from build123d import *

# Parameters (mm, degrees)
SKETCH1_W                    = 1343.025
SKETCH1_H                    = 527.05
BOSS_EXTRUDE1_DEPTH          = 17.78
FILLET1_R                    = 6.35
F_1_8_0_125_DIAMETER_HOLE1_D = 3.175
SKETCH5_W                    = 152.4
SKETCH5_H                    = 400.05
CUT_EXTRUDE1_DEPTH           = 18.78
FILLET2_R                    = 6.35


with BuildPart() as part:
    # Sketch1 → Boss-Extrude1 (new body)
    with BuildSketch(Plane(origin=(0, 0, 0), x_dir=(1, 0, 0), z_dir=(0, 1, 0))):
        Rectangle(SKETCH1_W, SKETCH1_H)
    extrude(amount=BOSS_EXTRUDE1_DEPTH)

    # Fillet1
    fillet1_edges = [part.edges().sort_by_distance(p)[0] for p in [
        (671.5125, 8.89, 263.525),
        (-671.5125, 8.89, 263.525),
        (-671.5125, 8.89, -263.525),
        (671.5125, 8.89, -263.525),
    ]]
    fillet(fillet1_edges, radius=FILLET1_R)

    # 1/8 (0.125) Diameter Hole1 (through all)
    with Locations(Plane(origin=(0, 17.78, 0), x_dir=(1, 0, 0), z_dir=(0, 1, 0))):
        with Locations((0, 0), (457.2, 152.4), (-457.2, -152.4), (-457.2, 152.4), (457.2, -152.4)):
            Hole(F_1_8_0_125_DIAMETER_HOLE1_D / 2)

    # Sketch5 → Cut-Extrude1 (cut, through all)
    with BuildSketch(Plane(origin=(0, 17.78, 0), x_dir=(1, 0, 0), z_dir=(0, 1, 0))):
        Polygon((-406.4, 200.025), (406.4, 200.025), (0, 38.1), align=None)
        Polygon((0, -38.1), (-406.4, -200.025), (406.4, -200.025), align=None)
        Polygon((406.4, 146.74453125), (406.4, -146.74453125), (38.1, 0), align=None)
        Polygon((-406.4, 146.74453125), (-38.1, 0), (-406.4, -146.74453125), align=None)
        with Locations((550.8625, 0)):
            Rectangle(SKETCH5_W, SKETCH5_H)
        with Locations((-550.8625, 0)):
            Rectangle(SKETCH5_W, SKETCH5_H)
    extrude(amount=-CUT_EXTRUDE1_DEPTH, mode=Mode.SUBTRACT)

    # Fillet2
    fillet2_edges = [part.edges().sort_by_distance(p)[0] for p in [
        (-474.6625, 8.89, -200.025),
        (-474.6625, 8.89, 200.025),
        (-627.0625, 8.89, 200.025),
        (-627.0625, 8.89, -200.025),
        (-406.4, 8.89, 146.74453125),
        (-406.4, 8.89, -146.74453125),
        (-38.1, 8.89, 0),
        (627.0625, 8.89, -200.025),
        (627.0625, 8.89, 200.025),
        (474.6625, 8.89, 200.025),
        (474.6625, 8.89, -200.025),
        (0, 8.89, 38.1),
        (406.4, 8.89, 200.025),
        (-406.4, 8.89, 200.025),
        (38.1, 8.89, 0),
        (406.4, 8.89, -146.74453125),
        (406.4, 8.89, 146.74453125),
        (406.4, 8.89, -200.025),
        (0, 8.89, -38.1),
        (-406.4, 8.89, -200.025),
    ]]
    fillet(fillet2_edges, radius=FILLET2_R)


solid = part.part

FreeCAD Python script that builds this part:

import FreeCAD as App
import Part
import Sketcher
Q = App.Units.Quantity


def edges_at(feature, points):
    """Names of the edges that pass closest to the given points."""
    edges = feature.Shape.Edges
    near = lambda p: min(range(len(edges)), key=lambda i: edges[i].distToShape(Part.Vertex(*p))[0])
    return sorted({f"Edge{near(p) + 1}" for p in points})

doc = App.newDocument("Part")
params = doc.addObject("Spreadsheet::Sheet", "Params")
for row, (alias, value) in enumerate([
    ("sketch1_height", "20.75 in"),
    ("sketch1_width", "52.875 in"),
    ("pad1_length", "0.7 in"),
    ("fillet_radius", "0.25 in"),
    ("sketch2_diameter", "0.125 in"),
    ("hole_diameter", "0.125 in"),
    ("sketch3_width", "32 in"),
    ("sketch3_width2", "6 in"),
    ("sketch3_height", "15.75 in"),
    ("fillet2_radius", "0.25 in"),
], start=1):
    params.set(f"A{row}", alias)
    params.set(f"B{row}", "=" + value)
    params.setAlias(f"B{row}", alias)

body = doc.addObject("PartDesign::Body", "Body")

# Sketch on XZ plane
sketch1 = body.newObject("Sketcher::SketchObject", "Sketch")
sketch1.AttachmentSupport = (doc.getObject("XZ_Plane"), [""])
sketch1.MapMode = "FlatFace"
sketch1.addGeometry([
    Part.LineSegment(App.Vector(-672, -264, 0), App.Vector(-672, 264, 0)),
    Part.LineSegment(App.Vector(-672, 264, 0), App.Vector(672, 264, 0)),
    Part.LineSegment(App.Vector(672, 264, 0), App.Vector(672, -264, 0)),
    Part.LineSegment(App.Vector(672, -264, 0), App.Vector(-672, -264, 0)),
], False)
sketch1.addConstraint([
    Sketcher.Constraint("Coincident", 0, 2, 1, 1),
    Sketcher.Constraint("Coincident", 1, 2, 2, 1),
    Sketcher.Constraint("Coincident", 2, 2, 3, 1),
    Sketcher.Constraint("Coincident", 3, 2, 0, 1),
    Sketcher.Constraint("Vertical", 0),
    Sketcher.Constraint("Horizontal", 1),
    Sketcher.Constraint("Vertical", 2),
    Sketcher.Constraint("Horizontal", 3),
    Sketcher.Constraint("Symmetric", 0, 2, 2, 2, -1, 1),
    Sketcher.Constraint("DistanceY", 0, 1, 0, 2, Q("20.75 in")),
    Sketcher.Constraint("DistanceX", 1, 1, 1, 2, Q("52.875 in")),
])
sketch1.setExpression("Constraints[9]", "Params.sketch1_height")
sketch1.setExpression("Constraints[10]", "Params.sketch1_width")
pad1 = body.newObject("PartDesign::Pad", "Pad")
pad1.Profile = sketch1
pad1.setExpression("Length", "Params.pad1_length")
pad1.Reversed = True
doc.recompute()

fillet = body.newObject("PartDesign::Fillet", "Fillet")
fillet.Base = (pad1, edges_at(pad1, [
    (671.513, 8.89, 263.525),
    (-671.513, 8.89, 263.525),
    (-671.513, 8.89, -263.525),
    (671.513, 8.89, -263.525),
]))
fillet.setExpression("Radius", "Params.fillet_radius")

# Sketch on XZ plane
sketch2 = body.newObject("Sketcher::SketchObject", "Sketch001")
sketch2.AttachmentSupport = (doc.getObject("XZ_Plane"), [""])
sketch2.MapMode = "FlatFace"
sketch2.AttachmentOffset = App.Placement(App.Vector(0, 0, -0.7 * 25.4), App.Rotation())
sketch2.addGeometry([
    Part.Circle(App.Vector(0, 0, 0), App.Vector(0, 0, 1), 1.6),  # 0
    Part.Circle(App.Vector(457.2, -152.4, 0), App.Vector(0, 0, 1), 1.6),  # 1
    Part.Circle(App.Vector(-457.2, 152.4, 0), App.Vector(0, 0, 1), 1.6),  # 2
    Part.Circle(App.Vector(-457.2, -152.4, 0), App.Vector(0, 0, 1), 1.6),  # 3
    Part.Circle(App.Vector(457.2, 152.4, 0), App.Vector(0, 0, 1), 1.6),  # 4
], False)
sketch2.addConstraint([
    Sketcher.Constraint("Coincident", 0, 3, -1, 1),
    Sketcher.Constraint("Equal", 0, 1),
    Sketcher.Constraint("Equal", 1, 2),
    Sketcher.Constraint("Equal", 2, 3),
    Sketcher.Constraint("Equal", 3, 4),
    Sketcher.Constraint("Symmetric", 1, 3, 2, 3, -1, 1),
    Sketcher.Constraint("Symmetric", 3, 3, 4, 3, -1, 1),
    Sketcher.Constraint("Symmetric", 1, 3, 3, 3, -2),
    Sketcher.Constraint("Diameter", 0, Q("0.125 in")),
    Sketcher.Constraint("DistanceX", -1, 1, 1, 3, Q("18 in")),
    Sketcher.Constraint("DistanceY", 1, 3, -1, 1, Q("6 in")),
])
sketch2.setExpression("Constraints[8]", "Params.sketch2_diameter")
doc.recompute()
hole = body.newObject("PartDesign::Hole", "Hole")
hole.Profile = sketch2
hole.ThreadType = "None"
hole.setExpression("Diameter", "Params.hole_diameter")
hole.DepthType = "ThroughAll"
hole.Reversed = True

# Sketch on XZ plane
sketch3 = body.newObject("Sketcher::SketchObject", "Sketch002")
sketch3.AttachmentSupport = (doc.getObject("XZ_Plane"), [""])
sketch3.MapMode = "FlatFace"
sketch3.AttachmentOffset = App.Placement(App.Vector(0, 0, -0.7 * 25.4), App.Rotation())
sketch3.addGeometry([
    Part.LineSegment(App.Vector(406, -200, 0), App.Vector(-406, -200, 0)),  # 0
    Part.LineSegment(App.Vector(-406, -200, 0), App.Vector(0, -38, 0)),  # 1
    Part.LineSegment(App.Vector(0, -38, 0), App.Vector(406, -200, 0)),  # 2
    Part.LineSegment(App.Vector(0, 38, 0), App.Vector(-406, 200, 0)),  # 3
    Part.LineSegment(App.Vector(-406, 200, 0), App.Vector(406, 200, 0)),  # 4
    Part.LineSegment(App.Vector(406, 200, 0), App.Vector(0, 38, 0)),  # 5
    Part.LineSegment(App.Vector(406, 147, 0), App.Vector(406, -147, 0)),  # 6
    Part.LineSegment(App.Vector(406, -147, 0), App.Vector(38, 0, 0)),  # 7
    Part.LineSegment(App.Vector(38, 0, 0), App.Vector(406, 147, 0)),  # 8
    Part.LineSegment(App.Vector(-38, 0, 0), App.Vector(-406, -147, 0)),  # 9
    Part.LineSegment(App.Vector(-406, -147, 0), App.Vector(-406, 147, 0)),  # 10
    Part.LineSegment(App.Vector(-406, 147, 0), App.Vector(-38, 0, 0)),  # 11
    Part.LineSegment(App.Vector(475, -200, 0), App.Vector(475, 200, 0)),  # 12
    Part.LineSegment(App.Vector(475, 200, 0), App.Vector(627, 200, 0)),  # 13
    Part.LineSegment(App.Vector(627, 200, 0), App.Vector(627, -200, 0)),  # 14
    Part.LineSegment(App.Vector(627, -200, 0), App.Vector(475, -200, 0)),  # 15
    Part.LineSegment(App.Vector(-627, -200, 0), App.Vector(-627, 200, 0)),  # 16
    Part.LineSegment(App.Vector(-627, 200, 0), App.Vector(-475, 200, 0)),  # 17
    Part.LineSegment(App.Vector(-475, 200, 0), App.Vector(-475, -200, 0)),  # 18
    Part.LineSegment(App.Vector(-475, -200, 0), App.Vector(-627, -200, 0)),  # 19
], False)
sketch3.addConstraint([
    Sketcher.Constraint("Coincident", 0, 2, 1, 1),
    Sketcher.Constraint("Coincident", 1, 2, 2, 1),
    Sketcher.Constraint("Coincident", 2, 2, 0, 1),
    Sketcher.Constraint("Coincident", 3, 2, 4, 1),
    Sketcher.Constraint("Coincident", 4, 2, 5, 1),
    Sketcher.Constraint("Coincident", 5, 2, 3, 1),
    Sketcher.Constraint("Coincident", 6, 2, 7, 1),
    Sketcher.Constraint("Coincident", 7, 2, 8, 1),
    Sketcher.Constraint("Coincident", 8, 2, 6, 1),
    Sketcher.Constraint("Coincident", 9, 2, 10, 1),
    Sketcher.Constraint("Coincident", 10, 2, 11, 1),
    Sketcher.Constraint("Coincident", 11, 2, 9, 1),
    Sketcher.Constraint("Coincident", 12, 2, 13, 1),
    Sketcher.Constraint("Coincident", 13, 2, 14, 1),
    Sketcher.Constraint("Coincident", 14, 2, 15, 1),
    Sketcher.Constraint("Coincident", 15, 2, 12, 1),
    Sketcher.Constraint("Coincident", 16, 2, 17, 1),
    Sketcher.Constraint("Coincident", 17, 2, 18, 1),
    Sketcher.Constraint("Coincident", 18, 2, 19, 1),
    Sketcher.Constraint("Coincident", 19, 2, 16, 1),
    Sketcher.Constraint("Horizontal", 0),
    Sketcher.Constraint("Horizontal", 4),
    Sketcher.Constraint("Vertical", 6),
    Sketcher.Constraint("Vertical", 10),
    Sketcher.Constraint("Vertical", 12),
    Sketcher.Constraint("Horizontal", 13),
    Sketcher.Constraint("Vertical", 14),
    Sketcher.Constraint("Horizontal", 15),
    Sketcher.Constraint("Vertical", 16),
    Sketcher.Constraint("Horizontal", 17),
    Sketcher.Constraint("Vertical", 18),
    Sketcher.Constraint("Horizontal", 19),
    Sketcher.Constraint("Symmetric", 2, 2, 3, 2, -1, 1),
    Sketcher.Constraint("Symmetric", 1, 2, 5, 2, -1, 1),
    Sketcher.Constraint("Symmetric", 8, 2, 9, 2, -1, 1),
    Sketcher.Constraint("Symmetric", 7, 2, 11, 2, -1, 1),
    Sketcher.Constraint("Symmetric", 14, 2, 16, 2, -1, 1),
    Sketcher.Constraint("Symmetric", 12, 2, 18, 2, -1, 1),
    Sketcher.Constraint("PointOnObject", 1, 2, -2),
    Sketcher.Constraint("PointOnObject", 7, 2, -1),
    Sketcher.Constraint("Parallel", 1, 5),
    Sketcher.Constraint("Parallel", 3, 7),
    Sketcher.Constraint("Parallel", 5, 8),
    Sketcher.Constraint("Parallel", 7, 11),
    Sketcher.Constraint("Horizontal", 6, 2, 9, 2),
    Sketcher.Constraint("Horizontal", 4, 2, 12, 2),
    Sketcher.Constraint("Horizontal", 2, 2, 14, 2),
    Sketcher.Constraint("Vertical", 4, 2, 6, 2),
    Sketcher.Constraint("DistanceX", 0, 2, 0, 1, Q("32 in")),
    Sketcher.Constraint("DistanceX", 13, 1, 13, 2, Q("6 in")),
    Sketcher.Constraint("DistanceY", 1, 2, 5, 2, Q("3 in")),
    Sketcher.Constraint("DistanceX", 11, 2, 7, 2, Q("3 in")),
    Sketcher.Constraint("DistanceY", 12, 1, 12, 2, Q("15.75 in")),
    Sketcher.Constraint("DistanceX", -1, 1, 12, 2, Q("18.6875 in")),
])
sketch3.setExpression("Constraints[48]", "Params.sketch3_width")
sketch3.setExpression("Constraints[49]", "Params.sketch3_width2")
sketch3.setExpression("Constraints[52]", "Params.sketch3_height")
pocket1 = body.newObject("PartDesign::Pocket", "Pocket")
pocket1.Profile = sketch3
pocket1.Type = "ThroughAll"
pocket1.Reversed = True
doc.recompute()

fillet2 = body.newObject("PartDesign::Fillet", "Fillet001")
fillet2.Base = (pocket1, edges_at(pocket1, [
    (-474.663, 8.89, -200.025),
    (-474.663, 8.89, 200.025),
    (-627.062, 8.89, 200.025),
    (-627.062, 8.89, -200.025),
    (-406.4, 8.89, 146.745),
    (-406.4, 8.89, -146.745),
    (-38.1, 8.89, 0),
    (627.062, 8.89, -200.025),
    (627.062, 8.89, 200.025),
    (474.663, 8.89, 200.025),
    (474.663, 8.89, -200.025),
    (0, 8.89, 38.1),
    (406.4, 8.89, 200.025),
    (-406.4, 8.89, 200.025),
    (38.1, 8.89, 0),
    (406.4, 8.89, -146.745),
    (406.4, 8.89, 146.745),
    (406.4, 8.89, -200.025),
    (0, 8.89, -38.1),
    (-406.4, 8.89, -200.025),
]))
fillet2.setExpression("Radius", "Params.fillet2_radius")

doc.recompute()
